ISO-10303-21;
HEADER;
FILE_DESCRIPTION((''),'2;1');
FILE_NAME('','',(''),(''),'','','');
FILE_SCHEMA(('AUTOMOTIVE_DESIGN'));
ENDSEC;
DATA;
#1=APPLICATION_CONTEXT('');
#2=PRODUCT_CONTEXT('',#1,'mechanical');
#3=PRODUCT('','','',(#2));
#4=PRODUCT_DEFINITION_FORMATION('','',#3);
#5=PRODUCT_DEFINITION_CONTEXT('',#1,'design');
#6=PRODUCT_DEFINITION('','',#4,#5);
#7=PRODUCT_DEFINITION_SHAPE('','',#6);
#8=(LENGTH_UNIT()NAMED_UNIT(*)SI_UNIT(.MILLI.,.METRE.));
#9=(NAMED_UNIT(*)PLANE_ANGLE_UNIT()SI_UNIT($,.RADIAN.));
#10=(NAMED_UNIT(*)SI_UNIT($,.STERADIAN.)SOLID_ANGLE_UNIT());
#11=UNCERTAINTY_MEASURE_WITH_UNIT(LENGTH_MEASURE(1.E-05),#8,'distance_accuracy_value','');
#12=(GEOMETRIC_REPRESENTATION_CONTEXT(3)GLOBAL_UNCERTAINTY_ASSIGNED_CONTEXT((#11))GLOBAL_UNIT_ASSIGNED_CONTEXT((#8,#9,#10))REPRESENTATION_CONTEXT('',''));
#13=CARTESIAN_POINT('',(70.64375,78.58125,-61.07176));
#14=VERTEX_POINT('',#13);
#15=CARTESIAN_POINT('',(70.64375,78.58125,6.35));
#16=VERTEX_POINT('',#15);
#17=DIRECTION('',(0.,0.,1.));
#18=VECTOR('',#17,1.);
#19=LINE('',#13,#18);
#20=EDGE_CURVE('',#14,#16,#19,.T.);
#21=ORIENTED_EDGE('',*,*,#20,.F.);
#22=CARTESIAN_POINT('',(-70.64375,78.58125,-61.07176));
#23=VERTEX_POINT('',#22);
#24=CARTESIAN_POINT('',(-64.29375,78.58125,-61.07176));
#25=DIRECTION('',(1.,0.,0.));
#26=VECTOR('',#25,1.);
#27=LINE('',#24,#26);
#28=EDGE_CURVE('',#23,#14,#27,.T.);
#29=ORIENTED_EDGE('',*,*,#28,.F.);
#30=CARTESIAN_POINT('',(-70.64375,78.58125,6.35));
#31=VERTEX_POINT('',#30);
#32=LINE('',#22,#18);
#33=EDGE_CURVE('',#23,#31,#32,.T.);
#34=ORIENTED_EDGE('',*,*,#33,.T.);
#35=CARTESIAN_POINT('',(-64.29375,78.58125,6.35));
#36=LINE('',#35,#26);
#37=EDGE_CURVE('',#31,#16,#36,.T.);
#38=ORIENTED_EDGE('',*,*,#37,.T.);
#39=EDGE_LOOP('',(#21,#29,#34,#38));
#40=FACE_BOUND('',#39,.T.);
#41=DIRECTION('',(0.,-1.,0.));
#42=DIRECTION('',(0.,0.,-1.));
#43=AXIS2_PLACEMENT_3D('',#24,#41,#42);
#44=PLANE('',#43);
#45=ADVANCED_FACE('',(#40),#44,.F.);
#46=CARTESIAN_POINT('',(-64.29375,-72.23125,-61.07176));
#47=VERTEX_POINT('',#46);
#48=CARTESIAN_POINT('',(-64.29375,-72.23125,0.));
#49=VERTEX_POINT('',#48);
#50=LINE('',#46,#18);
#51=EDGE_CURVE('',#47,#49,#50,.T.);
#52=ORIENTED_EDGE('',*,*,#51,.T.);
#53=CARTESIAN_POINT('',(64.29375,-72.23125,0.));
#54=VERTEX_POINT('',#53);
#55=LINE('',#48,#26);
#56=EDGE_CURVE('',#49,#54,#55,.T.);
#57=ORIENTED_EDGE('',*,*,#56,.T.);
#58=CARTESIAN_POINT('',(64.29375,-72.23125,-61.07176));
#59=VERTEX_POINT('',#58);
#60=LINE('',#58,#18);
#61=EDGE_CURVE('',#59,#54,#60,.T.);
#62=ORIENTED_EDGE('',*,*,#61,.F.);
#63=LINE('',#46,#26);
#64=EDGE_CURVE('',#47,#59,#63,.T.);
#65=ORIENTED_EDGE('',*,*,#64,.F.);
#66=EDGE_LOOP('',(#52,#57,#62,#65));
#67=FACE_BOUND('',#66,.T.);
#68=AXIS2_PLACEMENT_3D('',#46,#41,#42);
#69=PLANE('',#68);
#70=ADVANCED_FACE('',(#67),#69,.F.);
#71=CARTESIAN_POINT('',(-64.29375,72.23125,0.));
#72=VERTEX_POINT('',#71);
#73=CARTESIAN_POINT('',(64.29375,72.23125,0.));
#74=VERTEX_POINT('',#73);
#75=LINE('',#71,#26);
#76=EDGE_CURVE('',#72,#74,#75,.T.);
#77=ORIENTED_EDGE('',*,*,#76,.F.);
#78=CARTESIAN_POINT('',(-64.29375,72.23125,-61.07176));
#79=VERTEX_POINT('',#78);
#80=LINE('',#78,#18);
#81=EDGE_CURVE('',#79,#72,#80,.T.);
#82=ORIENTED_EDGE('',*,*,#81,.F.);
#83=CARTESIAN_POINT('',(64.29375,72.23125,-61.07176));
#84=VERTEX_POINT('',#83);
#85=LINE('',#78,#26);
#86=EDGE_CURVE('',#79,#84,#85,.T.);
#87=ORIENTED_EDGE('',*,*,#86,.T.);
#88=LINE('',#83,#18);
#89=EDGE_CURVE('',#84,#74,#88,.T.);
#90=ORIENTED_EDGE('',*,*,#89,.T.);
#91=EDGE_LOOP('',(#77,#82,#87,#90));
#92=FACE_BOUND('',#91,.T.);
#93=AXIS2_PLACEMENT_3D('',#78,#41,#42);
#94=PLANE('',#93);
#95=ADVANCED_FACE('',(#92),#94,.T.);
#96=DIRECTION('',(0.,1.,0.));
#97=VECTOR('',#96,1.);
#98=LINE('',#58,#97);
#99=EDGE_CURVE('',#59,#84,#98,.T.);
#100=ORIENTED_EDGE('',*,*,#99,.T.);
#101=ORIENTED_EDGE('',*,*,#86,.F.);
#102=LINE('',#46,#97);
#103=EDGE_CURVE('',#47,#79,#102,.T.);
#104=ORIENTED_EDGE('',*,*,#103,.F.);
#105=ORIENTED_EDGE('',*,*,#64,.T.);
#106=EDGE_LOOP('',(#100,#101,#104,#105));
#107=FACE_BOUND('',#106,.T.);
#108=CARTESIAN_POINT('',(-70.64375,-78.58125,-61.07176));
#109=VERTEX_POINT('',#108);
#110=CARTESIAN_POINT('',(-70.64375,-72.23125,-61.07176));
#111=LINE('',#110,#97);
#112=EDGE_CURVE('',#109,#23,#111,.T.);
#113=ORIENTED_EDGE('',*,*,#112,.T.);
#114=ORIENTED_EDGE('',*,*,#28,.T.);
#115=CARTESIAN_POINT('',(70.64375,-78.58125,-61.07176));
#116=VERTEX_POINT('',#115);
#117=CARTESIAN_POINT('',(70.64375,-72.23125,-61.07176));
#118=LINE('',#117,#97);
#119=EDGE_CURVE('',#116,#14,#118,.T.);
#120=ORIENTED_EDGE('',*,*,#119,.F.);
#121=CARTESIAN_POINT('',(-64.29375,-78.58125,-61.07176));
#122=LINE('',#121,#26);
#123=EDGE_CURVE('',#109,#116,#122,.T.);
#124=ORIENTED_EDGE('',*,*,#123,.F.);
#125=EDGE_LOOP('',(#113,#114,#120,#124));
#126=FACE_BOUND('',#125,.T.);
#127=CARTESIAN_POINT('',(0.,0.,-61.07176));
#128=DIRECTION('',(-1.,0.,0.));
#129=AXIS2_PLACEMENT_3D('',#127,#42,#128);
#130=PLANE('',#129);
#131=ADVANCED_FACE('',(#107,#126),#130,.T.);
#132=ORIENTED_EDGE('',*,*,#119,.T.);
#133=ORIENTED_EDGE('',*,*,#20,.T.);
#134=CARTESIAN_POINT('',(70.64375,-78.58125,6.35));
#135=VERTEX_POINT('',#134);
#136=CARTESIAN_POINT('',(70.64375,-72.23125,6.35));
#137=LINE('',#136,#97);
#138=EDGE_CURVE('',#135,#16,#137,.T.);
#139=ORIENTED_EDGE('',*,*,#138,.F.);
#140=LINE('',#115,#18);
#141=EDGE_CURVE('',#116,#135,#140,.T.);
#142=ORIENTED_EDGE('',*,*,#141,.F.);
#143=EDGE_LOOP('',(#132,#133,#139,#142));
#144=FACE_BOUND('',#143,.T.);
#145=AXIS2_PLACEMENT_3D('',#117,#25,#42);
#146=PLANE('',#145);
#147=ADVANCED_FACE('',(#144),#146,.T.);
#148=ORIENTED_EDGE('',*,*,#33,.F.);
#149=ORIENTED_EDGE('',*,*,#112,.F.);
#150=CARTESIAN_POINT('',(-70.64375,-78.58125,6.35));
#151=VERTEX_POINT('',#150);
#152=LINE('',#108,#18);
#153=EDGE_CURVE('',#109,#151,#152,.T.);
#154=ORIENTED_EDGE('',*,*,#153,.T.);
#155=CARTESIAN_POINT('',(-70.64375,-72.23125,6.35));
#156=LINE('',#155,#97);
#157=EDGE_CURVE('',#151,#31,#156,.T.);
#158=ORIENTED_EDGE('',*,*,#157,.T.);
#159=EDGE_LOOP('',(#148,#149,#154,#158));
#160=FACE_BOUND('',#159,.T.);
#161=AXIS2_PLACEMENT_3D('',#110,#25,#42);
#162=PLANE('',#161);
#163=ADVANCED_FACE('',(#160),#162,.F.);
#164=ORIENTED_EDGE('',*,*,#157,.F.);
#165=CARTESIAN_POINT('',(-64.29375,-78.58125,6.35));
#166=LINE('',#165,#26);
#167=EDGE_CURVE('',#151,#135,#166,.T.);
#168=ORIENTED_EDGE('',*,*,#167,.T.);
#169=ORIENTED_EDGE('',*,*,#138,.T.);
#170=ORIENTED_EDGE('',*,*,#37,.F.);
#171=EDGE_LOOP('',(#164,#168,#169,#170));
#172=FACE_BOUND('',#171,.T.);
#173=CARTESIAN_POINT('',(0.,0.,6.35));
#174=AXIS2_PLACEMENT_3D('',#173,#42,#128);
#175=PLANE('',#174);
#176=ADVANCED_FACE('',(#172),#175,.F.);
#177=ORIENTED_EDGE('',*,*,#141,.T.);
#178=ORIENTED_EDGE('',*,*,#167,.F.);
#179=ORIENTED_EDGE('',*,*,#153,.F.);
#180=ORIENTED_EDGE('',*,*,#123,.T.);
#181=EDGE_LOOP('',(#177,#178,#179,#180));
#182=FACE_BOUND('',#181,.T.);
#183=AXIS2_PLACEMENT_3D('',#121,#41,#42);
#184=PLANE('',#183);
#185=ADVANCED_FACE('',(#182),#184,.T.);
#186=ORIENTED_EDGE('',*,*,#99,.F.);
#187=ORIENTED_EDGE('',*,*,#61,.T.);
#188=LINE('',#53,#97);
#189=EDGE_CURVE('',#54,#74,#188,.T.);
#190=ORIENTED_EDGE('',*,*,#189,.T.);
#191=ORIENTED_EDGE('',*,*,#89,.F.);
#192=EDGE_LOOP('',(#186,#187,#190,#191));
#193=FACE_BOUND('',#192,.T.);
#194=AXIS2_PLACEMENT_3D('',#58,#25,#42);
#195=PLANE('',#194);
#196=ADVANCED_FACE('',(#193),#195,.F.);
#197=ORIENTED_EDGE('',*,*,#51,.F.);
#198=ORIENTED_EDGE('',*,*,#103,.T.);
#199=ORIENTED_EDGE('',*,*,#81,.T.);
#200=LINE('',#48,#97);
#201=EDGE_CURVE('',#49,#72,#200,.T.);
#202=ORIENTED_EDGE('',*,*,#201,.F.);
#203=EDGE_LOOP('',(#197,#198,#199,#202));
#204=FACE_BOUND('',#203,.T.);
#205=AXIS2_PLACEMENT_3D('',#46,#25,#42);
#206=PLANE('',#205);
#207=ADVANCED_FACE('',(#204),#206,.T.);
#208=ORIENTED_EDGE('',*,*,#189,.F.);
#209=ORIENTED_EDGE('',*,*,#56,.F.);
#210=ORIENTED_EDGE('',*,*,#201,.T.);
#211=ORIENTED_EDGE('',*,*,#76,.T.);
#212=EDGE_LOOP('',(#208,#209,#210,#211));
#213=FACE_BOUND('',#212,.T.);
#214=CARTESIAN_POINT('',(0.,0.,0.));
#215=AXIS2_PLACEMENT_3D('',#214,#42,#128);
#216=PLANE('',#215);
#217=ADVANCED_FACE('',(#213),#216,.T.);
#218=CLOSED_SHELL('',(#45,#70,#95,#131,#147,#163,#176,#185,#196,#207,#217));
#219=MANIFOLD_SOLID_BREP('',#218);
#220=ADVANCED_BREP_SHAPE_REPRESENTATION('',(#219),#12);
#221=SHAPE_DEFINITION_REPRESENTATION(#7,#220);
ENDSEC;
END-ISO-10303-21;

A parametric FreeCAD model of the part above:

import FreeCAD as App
import Part
import Sketcher

V = App.Vector
Q = App.Units.Quantity


def faces_at(feature, points):
    """Names of the faces that lie closest to the given points."""
    faces = feature.Shape.Faces
    near = lambda p: min(range(len(faces)), key=lambda i: faces[i].distToShape(Part.Vertex(*p))[0])
    return sorted({f"Face{near(p) + 1}" for p in points})


def add_polygon(sketch, points):
    """Adds a closed chain of lines whose ends are joined by coincident constraints."""
    first, n = sketch.GeometryCount, len(points)
    for a, b in zip(points, points[1:] + points[:1]):
        sketch.addGeometry(Part.LineSegment(App.Vector(*a, 0), App.Vector(*b, 0)), False)
    for i in range(n):
        sketch.addConstraint(Sketcher.Constraint("Coincident", first + i, 2, first + (i + 1) % n, 1))

doc = App.newDocument("Part")
body = doc.addObject("PartDesign::Body", "Body")

# Sketch on XY plane
sketch1 = doc.addObject("Sketcher::SketchObject", "Sketch")
body.addObject(sketch1)
sketch1.AttachmentSupport = (doc.XY_Plane, [""])
sketch1.MapMode = "FlatFace"
add_polygon(sketch1, [(-64, 72), (-64, -72), (64, -72), (64, 72)])  # lines 0-3
sketch1.addConstraint(Sketcher.Constraint("Vertical", 0))
sketch1.addConstraint(Sketcher.Constraint("Horizontal", 1))
sketch1.addConstraint(Sketcher.Constraint("Vertical", 2))
sketch1.addConstraint(Sketcher.Constraint("Horizontal", 3))
sketch1.addConstraint(Sketcher.Constraint("Symmetric", 0, 2, 2, 2, -1, 1))
sketch1.addConstraint(Sketcher.Constraint("DistanceX", 1, 1, 1, 2, Q("5.0625 in")))
sketch1.addConstraint(Sketcher.Constraint("DistanceY", 0, 2, 0, 1, Q("5.6875 in")))
pad1 = doc.addObject("PartDesign::Pad", "Pad")
body.addObject(pad1)
pad1.Profile = sketch1
pad1.Length = Q("2.4044 in")
pad1.Reversed = True
doc.recompute()

thickness = doc.addObject("PartDesign::Thickness", "Thickness")
body.addObject(thickness)
thickness.Base = (pad1, faces_at(pad1, [(0, 0, -61.072)]))
thickness.Value = Q("0.25 in")
thickness.Reversed = False
thickness.Join = "Intersection"

doc.recompute()
